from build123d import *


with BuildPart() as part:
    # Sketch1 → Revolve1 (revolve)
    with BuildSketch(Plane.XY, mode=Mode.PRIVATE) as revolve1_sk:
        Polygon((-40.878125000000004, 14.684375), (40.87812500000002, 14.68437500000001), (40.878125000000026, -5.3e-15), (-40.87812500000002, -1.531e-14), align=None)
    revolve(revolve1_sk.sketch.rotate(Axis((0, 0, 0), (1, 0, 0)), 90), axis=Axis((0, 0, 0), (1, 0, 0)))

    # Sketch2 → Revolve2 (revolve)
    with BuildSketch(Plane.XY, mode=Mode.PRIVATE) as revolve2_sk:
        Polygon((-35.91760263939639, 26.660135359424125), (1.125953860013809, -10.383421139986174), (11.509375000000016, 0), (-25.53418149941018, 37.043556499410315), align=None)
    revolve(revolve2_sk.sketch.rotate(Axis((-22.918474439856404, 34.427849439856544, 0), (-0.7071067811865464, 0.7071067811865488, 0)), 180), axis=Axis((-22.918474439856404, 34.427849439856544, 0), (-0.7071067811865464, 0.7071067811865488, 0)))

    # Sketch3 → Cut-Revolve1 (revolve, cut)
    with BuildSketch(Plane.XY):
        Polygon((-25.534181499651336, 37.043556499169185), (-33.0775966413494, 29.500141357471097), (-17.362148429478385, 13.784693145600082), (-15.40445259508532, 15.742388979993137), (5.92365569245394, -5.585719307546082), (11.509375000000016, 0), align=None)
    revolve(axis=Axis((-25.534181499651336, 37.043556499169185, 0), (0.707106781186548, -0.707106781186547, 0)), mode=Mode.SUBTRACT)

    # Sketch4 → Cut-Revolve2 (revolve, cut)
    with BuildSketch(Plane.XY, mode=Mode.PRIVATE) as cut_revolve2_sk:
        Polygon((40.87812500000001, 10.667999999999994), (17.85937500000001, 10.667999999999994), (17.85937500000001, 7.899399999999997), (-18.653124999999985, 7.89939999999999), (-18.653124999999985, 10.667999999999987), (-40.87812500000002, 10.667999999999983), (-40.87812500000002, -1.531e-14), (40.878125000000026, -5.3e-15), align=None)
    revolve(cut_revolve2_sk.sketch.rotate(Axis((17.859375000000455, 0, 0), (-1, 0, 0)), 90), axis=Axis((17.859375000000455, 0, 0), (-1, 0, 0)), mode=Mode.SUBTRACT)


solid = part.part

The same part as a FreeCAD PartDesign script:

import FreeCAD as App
import Part
import Sketcher
from FreeCAD import Vector
Q = App.Units.Quantity


def add_polygon(sketch, points):
    """Adds a closed chain of lines whose ends are joined by coincident constraints."""
    first, n = sketch.GeometryCount, len(points)
    for a, b in zip(points, points[1:] + points[:1]):
        sketch.addGeometry(Part.LineSegment(App.Vector(*a, 0), App.Vector(*b, 0)), False)
    for i in range(n):
        sketch.addConstraint(Sketcher.Constraint("Coincident", first + i, 2, first + (i + 1) % n, 1))

doc = App.newDocument("Part")
body = doc.addObject("PartDesign::Body", "Body")

sketch1 = body.newObject("Sketcher::SketchObject", "Sketch")
sketch1.AttachmentSupport = (doc.getObject("XY_Plane"), [""])
sketch1.MapMode = "FlatFace"
add_polygon(sketch1, [(41, 15), (-41, 15), (-41, 0), (41, 0)])
sketch1.addConstraint(Sketcher.Constraint("Horizontal", 0))
sketch1.addConstraint(Sketcher.Constraint("Vertical", 1))
sketch1.addConstraint(Sketcher.Constraint("Horizontal", 2))
sketch1.addConstraint(Sketcher.Constraint("Vertical", 3))
sketch1.addConstraint(Sketcher.Constraint("Symmetric", 1, 2, 2, 2, -1, 1))
sketch1.addConstraint(Sketcher.Constraint("DistanceX", 0, 2, 0, 1, Q("3.21875 in")))
sketch1.addConstraint(Sketcher.Constraint("DistanceY", 1, 2, 1, 1, Q("0.578125 in")))
revolution = body.newObject("PartDesign::Revolution", "Revolution")
revolution.Profile = sketch1
revolution.ReferenceAxis = (sketch1, ["H_Axis"])
revolution.Angle = 360

sketch2 = body.newObject("Sketcher::SketchObject", "Sketch001")
sketch2.AttachmentSupport = (doc.getObject("XY_Plane"), [""])
sketch2.MapMode = "FlatFace"
add_polygon(sketch2, [(-36, 27), (1, -10), (12, 0), (-26, 37)])
sketch2.addGeometry(Part.LineSegment(Vector(12, 0, 0), Vector(-26, 37, 0)), True)
sketch2.addConstraint(Sketcher.Constraint("Coincident", 4, 1, 1, 2))
sketch2.addConstraint(Sketcher.Constraint("Coincident", 4, 2, 2, 2))
sketch2.addConstraint(Sketcher.Constraint("PointOnObject", 1, 2, -1))
sketch2.addConstraint(Sketcher.Constraint("Perpendicular", 0, 1))
sketch2.addConstraint(Sketcher.Constraint("Perpendicular", 1, 2))
sketch2.addConstraint(Sketcher.Constraint("Perpendicular", 2, 3))
sketch2.addConstraint(Sketcher.Constraint("Angle", 0, Q("-45 deg")))
sketch2.addConstraint(Sketcher.Constraint("Distance", 0, Q("2.0625 in")))
sketch2.addConstraint(Sketcher.Constraint("Distance", 1, Q("0.578125 in")))
sketch2.addConstraint(Sketcher.Constraint("DistanceX", -1, 1, 1, 2, Q("0.453125 in")))
revolution2 = body.newObject("PartDesign::Revolution", "Revolution001")
revolution2.Profile = sketch2
revolution2.ReferenceAxis = (sketch2, ["Axis0"])
revolution2.Angle = 360

sketch3 = body.newObject("Sketcher::SketchObject", "Sketch002")
sketch3.AttachmentSupport = (doc.getObject("XY_Plane"), [""])
sketch3.MapMode = "FlatFace"
add_polygon(sketch3, [(-25.5, 37), (-33.1, 29.5), (-17.4, 13.8), (-15.4, 15.7), (5.9, -5.6), (11.5, 0)])
sketch3.addGeometry(Part.LineSegment(Vector(-25.5, 37, 0), Vector(11.5, 0, 0)), True)
sketch3.addConstraint(Sketcher.Constraint("Coincident", 6, 1, 5, 2))
sketch3.addConstraint(Sketcher.Constraint("Coincident", 6, 2, 4, 2))
sketch3.addConstraint(Sketcher.Constraint("PointOnObject", 4, 2, -1))
sketch3.addConstraint(Sketcher.Constraint("Perpendicular", 0, 1))
sketch3.addConstraint(Sketcher.Constraint("Perpendicular", 1, 2))
sketch3.addConstraint(Sketcher.Constraint("Perpendicular", 2, 3))
sketch3.addConstraint(Sketcher.Constraint("Perpendicular", 3, 4))
sketch3.addConstraint(Sketcher.Constraint("Perpendicular", 4, 5))
sketch3.addConstraint(Sketcher.Constraint("Angle", 0, Q("-135 deg")))
sketch3.addConstraint(Sketcher.Constraint("Distance", 0, Q("0.42 in")))
sketch3.addConstraint(Sketcher.Constraint("Distance", 1, Q("0.875 in")))
sketch3.addConstraint(Sketcher.Constraint("Distance", 2, Q("0.109 in")))
sketch3.addConstraint(Sketcher.Constraint("Distance", 3, Q("1.1875 in")))
sketch3.addConstraint(Sketcher.Constraint("DistanceX", -1, 1, 4, 2, Q("0.453125 in")))
groove = body.newObject("PartDesign::Groove", "Groove")
groove.Profile = sketch3
groove.ReferenceAxis = (sketch3, ["Axis0"])
groove.Angle = 360

sketch4 = body.newObject("Sketcher::SketchObject", "Sketch003")
sketch4.AttachmentSupport = (doc.getObject("XY_Plane"), [""])
sketch4.MapMode = "FlatFace"
add_polygon(sketch4, [(40.9, 10.7), (17.9, 10.7), (17.9, 7.9), (-18.7, 7.9), (-18.7, 10.7), (-40.9, 10.7), (-40.9, 0), (40.9, 0)])
sketch4.addConstraint(Sketcher.Constraint("Horizontal", 0))
sketch4.addConstraint(Sketcher.Constraint("Vertical", 1))
sketch4.addConstraint(Sketcher.Constraint("Horizontal", 2))
sketch4.addConstraint(Sketcher.Constraint("Vertical", 3))
sketch4.addConstraint(Sketcher.Constraint("Horizontal", 4))
sketch4.addConstraint(Sketcher.Constraint("Vertical", 5))
sketch4.addConstraint(Sketcher.Constraint("Horizontal", 6))
sketch4.addConstraint(Sketcher.Constraint("Vertical", 7))
sketch4.addConstraint(Sketcher.Constraint("Symmetric", 5, 2, 6, 2, -1, 1))
sketch4.addConstraint(Sketcher.Constraint("Horizontal", 0, 2, 3, 2))
sketch4.addConstraint(Sketcher.Constraint("DistanceY", 5, 2, 5, 1, Q("0.42 in")))
sketch4.addConstraint(Sketcher.Constraint("DistanceX", 0, 2, 0, 1, Q("0.90625 in")))
sketch4.addConstraint(Sketcher.Constraint("DistanceX", 2, 2, 2, 1, Q("1.4375 in")))
sketch4.addConstraint(Sketcher.Constraint("DistanceX", 4, 2, 4, 1, Q("0.875 in")))
sketch4.addConstraint(Sketcher.Constraint("DistanceY", 1, 2, 1, 1, Q("0.109 in")))
groove2 = body.newObject("PartDesign::Groove", "Groove001")
groove2.Profile = sketch4
groove2.ReferenceAxis = (sketch4, ["H_Axis"])
groove2.Angle = 360

doc.recompute()
